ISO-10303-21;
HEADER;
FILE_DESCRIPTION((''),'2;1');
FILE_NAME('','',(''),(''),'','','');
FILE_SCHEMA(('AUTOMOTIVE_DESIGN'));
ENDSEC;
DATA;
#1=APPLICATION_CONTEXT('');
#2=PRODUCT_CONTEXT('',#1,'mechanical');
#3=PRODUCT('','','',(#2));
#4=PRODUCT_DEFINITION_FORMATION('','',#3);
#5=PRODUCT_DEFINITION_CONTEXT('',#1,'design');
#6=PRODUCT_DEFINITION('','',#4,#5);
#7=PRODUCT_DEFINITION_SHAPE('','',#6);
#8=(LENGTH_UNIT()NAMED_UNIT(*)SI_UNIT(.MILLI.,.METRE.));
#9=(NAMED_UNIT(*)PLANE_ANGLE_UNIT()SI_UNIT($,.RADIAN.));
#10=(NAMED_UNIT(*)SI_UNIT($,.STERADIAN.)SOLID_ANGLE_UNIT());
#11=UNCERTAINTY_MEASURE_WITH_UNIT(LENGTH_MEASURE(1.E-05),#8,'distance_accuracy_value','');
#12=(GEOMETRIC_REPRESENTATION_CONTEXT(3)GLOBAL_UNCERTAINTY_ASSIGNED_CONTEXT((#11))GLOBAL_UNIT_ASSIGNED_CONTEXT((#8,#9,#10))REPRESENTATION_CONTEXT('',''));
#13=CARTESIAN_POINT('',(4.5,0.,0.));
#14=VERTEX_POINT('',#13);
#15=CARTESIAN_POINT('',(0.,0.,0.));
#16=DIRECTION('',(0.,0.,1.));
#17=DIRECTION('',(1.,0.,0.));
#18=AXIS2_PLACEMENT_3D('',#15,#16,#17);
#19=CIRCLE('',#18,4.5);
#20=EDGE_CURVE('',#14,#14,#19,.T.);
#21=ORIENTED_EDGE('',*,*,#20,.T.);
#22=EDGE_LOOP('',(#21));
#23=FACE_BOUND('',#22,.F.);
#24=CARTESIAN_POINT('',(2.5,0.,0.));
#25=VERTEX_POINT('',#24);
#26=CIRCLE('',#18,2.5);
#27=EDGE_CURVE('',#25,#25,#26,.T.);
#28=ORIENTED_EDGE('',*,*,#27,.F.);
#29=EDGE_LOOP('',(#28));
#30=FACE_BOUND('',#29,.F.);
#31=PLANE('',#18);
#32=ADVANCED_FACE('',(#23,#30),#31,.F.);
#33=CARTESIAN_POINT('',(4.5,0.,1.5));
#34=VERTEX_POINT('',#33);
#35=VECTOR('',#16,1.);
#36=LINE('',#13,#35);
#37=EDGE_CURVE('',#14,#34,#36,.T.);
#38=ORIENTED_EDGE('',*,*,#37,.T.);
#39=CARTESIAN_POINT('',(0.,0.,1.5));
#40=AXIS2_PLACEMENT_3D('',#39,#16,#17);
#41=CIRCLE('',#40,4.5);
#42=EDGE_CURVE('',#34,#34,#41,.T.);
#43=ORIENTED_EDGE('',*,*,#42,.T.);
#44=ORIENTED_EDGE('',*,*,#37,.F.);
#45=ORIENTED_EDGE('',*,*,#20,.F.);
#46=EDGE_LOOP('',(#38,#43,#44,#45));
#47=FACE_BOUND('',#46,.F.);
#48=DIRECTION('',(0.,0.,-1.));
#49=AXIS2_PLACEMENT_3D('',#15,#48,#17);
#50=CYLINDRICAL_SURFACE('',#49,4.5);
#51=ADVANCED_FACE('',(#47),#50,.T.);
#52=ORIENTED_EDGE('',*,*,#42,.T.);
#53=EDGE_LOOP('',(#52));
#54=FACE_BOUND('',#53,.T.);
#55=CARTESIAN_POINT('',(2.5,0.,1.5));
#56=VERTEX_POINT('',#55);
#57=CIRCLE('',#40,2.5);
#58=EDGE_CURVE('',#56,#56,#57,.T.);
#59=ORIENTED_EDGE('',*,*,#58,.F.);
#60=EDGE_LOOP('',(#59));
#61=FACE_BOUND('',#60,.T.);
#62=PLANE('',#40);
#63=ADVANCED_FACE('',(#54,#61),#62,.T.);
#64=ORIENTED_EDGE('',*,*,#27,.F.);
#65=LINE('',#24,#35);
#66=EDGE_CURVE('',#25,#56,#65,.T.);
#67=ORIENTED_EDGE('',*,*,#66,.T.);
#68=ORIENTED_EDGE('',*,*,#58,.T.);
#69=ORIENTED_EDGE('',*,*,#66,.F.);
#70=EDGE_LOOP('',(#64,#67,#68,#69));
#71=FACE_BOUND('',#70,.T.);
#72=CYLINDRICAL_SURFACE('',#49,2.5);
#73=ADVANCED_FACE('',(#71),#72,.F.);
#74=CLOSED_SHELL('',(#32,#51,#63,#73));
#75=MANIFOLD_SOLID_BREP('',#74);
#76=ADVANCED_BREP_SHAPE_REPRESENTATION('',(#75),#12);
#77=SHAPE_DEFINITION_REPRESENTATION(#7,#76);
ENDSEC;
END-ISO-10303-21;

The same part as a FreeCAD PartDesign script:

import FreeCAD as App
import Part
import Sketcher
from FreeCAD import Vector

doc = App.newDocument("Part")
body = doc.addObject("PartDesign::Body", "Body")

# Sketch on XY plane
sketch1 = body.newObject("Sketcher::SketchObject", "Sketch")
sketch1.AttachmentSupport = (doc.getObject("XY_Plane"), [""])
sketch1.MapMode = "FlatFace"
sketch1.addGeometry([
    Part.Circle(Vector(0, 0, 0), Vector(0, 0, 1), 4.5),
    Part.Circle(Vector(0, 0, 0), Vector(0, 0, 1), 2.5),
], False)
sketch1.addConstraint([
    Sketcher.Constraint("Coincident", 0, 3, -1, 1),
    Sketcher.Constraint("Coincident", 1, 3, -1, 1),
    Sketcher.Constraint("Diameter", 0, 9.0),
    Sketcher.Constraint("Diameter", 1, 5.0),
])
pad1 = body.newObject("PartDesign::Pad", "Pad")
pad1.Profile = sketch1
pad1.Length = 1.5

doc.recompute()
